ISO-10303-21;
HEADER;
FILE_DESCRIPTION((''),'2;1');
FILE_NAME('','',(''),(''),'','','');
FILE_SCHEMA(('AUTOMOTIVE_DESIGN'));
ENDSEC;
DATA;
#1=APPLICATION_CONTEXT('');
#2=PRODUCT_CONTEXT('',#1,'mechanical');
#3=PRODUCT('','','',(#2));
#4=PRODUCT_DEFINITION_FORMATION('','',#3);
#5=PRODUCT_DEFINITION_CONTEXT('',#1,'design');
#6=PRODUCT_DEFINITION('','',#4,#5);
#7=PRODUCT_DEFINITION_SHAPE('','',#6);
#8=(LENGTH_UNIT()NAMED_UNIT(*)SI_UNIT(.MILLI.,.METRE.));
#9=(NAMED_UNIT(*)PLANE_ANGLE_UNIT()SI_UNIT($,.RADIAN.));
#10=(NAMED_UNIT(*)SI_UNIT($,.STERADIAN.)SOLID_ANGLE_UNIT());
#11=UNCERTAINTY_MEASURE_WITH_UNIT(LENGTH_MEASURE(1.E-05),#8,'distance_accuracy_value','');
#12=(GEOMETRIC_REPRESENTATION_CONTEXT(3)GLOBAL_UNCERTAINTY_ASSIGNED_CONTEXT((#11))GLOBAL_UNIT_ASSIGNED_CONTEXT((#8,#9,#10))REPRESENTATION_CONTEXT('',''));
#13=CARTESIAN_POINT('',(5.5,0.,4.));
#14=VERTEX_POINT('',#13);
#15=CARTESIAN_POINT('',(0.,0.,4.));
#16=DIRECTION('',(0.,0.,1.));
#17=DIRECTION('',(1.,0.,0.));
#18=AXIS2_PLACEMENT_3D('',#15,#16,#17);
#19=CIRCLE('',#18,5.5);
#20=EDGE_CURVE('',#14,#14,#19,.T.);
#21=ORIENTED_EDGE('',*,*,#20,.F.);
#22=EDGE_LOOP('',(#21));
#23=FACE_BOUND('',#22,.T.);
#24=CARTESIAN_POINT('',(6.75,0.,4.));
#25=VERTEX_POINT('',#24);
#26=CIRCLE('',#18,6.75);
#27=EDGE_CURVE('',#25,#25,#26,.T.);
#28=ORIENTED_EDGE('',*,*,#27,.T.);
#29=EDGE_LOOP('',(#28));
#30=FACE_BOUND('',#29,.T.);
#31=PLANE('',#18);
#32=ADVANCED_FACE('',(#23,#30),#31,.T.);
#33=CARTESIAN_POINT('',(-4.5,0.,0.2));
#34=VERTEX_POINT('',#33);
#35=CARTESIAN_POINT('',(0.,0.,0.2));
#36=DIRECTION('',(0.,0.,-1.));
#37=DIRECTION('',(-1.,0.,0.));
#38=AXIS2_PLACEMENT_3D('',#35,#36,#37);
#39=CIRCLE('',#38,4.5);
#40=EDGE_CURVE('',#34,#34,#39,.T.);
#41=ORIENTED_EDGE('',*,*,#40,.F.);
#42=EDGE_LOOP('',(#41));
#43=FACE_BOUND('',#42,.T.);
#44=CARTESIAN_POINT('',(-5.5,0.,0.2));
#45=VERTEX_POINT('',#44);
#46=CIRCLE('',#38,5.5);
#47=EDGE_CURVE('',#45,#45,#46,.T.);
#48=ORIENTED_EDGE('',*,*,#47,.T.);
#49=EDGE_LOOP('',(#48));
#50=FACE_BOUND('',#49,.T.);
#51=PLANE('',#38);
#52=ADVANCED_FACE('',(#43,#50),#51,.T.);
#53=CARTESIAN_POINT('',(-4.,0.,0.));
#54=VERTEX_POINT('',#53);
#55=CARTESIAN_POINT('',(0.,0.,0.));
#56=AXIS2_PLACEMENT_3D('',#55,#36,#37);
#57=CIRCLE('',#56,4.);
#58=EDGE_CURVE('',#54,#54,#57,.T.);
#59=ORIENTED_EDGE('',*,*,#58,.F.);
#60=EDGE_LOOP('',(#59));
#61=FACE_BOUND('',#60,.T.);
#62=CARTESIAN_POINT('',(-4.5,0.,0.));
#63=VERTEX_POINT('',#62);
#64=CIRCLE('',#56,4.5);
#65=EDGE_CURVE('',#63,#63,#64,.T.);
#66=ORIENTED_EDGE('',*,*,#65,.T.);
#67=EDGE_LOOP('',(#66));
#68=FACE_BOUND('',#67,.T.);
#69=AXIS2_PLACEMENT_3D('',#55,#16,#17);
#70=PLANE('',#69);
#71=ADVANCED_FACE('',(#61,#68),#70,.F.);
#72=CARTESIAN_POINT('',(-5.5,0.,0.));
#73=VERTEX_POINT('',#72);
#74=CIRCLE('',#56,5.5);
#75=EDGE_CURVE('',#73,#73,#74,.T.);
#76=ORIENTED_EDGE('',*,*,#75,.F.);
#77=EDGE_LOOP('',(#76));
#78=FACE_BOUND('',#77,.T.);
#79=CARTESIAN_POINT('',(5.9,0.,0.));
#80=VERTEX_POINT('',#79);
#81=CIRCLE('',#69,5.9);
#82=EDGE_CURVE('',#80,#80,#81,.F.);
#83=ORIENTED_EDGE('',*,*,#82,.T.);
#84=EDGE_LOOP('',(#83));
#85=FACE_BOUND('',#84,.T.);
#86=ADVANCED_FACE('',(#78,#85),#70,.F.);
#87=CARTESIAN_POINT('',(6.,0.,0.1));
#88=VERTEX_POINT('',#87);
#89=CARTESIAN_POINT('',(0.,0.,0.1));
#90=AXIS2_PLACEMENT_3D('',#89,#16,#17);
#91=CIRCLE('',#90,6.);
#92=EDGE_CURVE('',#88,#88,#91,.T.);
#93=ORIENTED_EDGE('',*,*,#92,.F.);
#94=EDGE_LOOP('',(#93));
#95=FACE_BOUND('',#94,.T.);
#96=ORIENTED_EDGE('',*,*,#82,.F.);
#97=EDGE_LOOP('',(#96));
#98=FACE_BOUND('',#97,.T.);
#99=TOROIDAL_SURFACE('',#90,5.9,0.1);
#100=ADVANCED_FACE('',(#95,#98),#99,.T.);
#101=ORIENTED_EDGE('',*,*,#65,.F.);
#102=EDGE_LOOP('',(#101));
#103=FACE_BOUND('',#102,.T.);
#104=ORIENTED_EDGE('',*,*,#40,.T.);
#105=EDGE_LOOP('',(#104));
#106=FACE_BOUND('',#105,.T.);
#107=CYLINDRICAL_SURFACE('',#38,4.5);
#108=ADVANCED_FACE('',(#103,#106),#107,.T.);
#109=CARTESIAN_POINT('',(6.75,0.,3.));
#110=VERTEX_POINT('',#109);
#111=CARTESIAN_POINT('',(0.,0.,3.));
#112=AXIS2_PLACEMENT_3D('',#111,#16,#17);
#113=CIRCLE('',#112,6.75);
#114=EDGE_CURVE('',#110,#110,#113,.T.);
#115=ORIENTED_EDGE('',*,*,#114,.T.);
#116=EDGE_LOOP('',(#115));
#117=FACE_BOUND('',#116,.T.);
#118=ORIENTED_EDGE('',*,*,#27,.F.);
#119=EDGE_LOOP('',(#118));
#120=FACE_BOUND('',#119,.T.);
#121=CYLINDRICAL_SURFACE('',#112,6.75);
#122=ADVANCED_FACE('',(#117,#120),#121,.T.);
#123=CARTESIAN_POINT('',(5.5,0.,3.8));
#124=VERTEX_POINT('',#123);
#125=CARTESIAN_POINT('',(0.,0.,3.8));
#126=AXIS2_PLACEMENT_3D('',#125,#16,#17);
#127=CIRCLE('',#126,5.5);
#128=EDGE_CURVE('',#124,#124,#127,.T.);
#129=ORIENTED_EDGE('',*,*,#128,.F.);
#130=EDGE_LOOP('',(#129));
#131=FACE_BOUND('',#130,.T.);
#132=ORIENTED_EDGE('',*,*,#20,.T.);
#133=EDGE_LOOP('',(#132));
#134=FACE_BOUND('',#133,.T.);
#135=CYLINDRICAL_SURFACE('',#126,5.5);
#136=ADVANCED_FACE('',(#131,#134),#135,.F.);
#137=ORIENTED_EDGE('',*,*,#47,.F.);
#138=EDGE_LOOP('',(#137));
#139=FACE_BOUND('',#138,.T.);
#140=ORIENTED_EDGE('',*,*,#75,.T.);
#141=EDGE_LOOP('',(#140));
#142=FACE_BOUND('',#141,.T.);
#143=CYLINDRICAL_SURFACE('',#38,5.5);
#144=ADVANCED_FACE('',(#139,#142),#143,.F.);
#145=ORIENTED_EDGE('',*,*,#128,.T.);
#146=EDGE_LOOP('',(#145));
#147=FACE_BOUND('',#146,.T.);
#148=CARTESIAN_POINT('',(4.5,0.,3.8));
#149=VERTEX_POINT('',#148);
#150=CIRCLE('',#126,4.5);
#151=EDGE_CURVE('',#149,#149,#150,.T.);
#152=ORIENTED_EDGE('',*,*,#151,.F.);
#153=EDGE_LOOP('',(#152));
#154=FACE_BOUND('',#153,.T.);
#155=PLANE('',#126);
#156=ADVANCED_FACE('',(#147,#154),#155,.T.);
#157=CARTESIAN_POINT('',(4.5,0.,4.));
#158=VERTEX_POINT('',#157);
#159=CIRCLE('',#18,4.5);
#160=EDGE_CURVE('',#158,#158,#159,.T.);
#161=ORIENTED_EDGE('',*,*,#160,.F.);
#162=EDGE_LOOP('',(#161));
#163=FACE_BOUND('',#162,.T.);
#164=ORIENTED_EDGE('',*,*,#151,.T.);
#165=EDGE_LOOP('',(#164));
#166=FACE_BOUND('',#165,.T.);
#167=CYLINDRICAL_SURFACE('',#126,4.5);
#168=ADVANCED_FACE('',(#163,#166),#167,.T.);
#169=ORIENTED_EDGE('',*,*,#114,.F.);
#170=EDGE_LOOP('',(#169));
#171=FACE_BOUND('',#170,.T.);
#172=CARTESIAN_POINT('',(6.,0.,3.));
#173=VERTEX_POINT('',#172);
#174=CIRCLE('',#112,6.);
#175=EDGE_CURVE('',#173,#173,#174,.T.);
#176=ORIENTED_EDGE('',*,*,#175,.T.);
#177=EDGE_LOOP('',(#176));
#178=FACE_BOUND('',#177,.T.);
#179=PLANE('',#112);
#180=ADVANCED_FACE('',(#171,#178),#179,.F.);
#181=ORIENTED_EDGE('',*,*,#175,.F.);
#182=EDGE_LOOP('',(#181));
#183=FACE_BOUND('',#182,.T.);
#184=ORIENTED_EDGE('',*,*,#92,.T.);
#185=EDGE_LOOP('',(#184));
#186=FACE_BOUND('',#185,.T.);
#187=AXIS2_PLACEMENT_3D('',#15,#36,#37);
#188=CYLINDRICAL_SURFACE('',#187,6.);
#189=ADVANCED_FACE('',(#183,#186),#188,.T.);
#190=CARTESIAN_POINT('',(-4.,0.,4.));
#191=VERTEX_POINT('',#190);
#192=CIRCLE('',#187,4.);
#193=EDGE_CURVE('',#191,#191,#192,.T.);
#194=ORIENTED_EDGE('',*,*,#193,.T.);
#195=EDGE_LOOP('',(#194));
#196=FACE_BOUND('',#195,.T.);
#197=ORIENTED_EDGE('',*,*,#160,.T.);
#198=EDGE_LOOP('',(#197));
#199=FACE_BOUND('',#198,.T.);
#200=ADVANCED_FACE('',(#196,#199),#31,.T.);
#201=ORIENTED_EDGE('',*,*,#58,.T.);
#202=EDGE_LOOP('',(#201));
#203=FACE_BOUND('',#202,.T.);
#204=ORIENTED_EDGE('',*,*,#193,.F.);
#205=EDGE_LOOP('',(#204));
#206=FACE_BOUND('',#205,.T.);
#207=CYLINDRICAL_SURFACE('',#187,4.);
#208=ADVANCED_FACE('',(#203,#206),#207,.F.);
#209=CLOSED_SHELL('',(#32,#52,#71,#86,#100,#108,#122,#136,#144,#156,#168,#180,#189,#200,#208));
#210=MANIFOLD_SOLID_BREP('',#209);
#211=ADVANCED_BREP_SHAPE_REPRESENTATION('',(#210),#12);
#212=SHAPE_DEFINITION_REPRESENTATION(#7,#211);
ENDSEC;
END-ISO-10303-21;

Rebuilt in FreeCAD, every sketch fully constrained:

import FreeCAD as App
import Part
import Sketcher


def edges_at(feature, points):
    """Names of the edges that pass closest to the given points."""
    edges = feature.Shape.Edges
    near = lambda p: min(range(len(edges)), key=lambda i: edges[i].distToShape(Part.Vertex(*p))[0])
    return sorted({f"Edge{near(p) + 1}" for p in points})

doc = App.newDocument("Part")
params = doc.addObject("Spreadsheet::Sheet", "Params")
for row, (alias, value) in enumerate([
    ("sketch1_diameter", "12 mm"),
    ("pad1_length", "4 mm"),
    ("sketch2_diameter", "13.5 mm"),
    ("pad2_length", "1 mm"),
    ("sketch3_diameter", "8 mm"),
    ("sketch4_diameter", "11 mm"),
    ("sketch4_diameter2", "9 mm"),
    ("pocket2_length", "0.2 mm"),
    ("sketch5_diameter", "11 mm"),
    ("sketch5_diameter2", "9 mm"),
    ("pocket3_length", "0.2 mm"),
    ("fillet_radius", "0.1 mm"),
], start=1):
    params.set(f"A{row}", alias)
    params.set(f"B{row}", "=" + value)
    params.setAlias(f"B{row}", alias)

body = doc.addObject("PartDesign::Body", "Body")

# Sketch on XY plane
sketch1 = body.newObject("Sketcher::SketchObject", "Sketch")
sketch1.AttachmentSupport = (doc.getObject("XY_Plane"), [""])
sketch1.MapMode = "FlatFace"
sketch1.addGeometry(Part.Circle(App.Vector(0, 0, 0), App.Vector(0, 0, 1), 6), False)
sketch1.addConstraint(Sketcher.Constraint("Coincident", 0, 3, -1, 1))
sketch1.addConstraint(Sketcher.Constraint("Diameter", 0, 12.0))
sketch1.setExpression("Constraints[1]", "Params.sketch1_diameter")
pad1 = body.newObject("PartDesign::Pad", "Pad")
pad1.Profile = sketch1
pad1.setExpression("Length", "Params.pad1_length")

# Sketch on XY plane
sketch2 = body.newObject("Sketcher::SketchObject", "Sketch001")
sketch2.AttachmentSupport = (doc.getObject("XY_Plane"), [""])
sketch2.MapMode = "FlatFace"
sketch2.AttachmentOffset = App.Placement(App.Vector(0, 0, 4), App.Rotation())
sketch2.addGeometry(Part.Circle(App.Vector(0, 0, 0), App.Vector(0, 0, 1), 6.75), False)
sketch2.addConstraint(Sketcher.Constraint("Coincident", 0, 3, -1, 1))
sketch2.addConstraint(Sketcher.Constraint("Diameter", 0, 13.5))
sketch2.setExpression("Constraints[1]", "Params.sketch2_diameter")
pad2 = body.newObject("PartDesign::Pad", "Pad001")
pad2.Profile = sketch2
pad2.setExpression("Length", "Params.pad2_length")
pad2.Reversed = True

# Sketch on XY plane
sketch3 = body.newObject("Sketcher::SketchObject", "Sketch002")
sketch3.AttachmentSupport = (doc.getObject("XY_Plane"), [""])
sketch3.MapMode = "FlatFace"
sketch3.addGeometry(Part.Circle(App.Vector(0, 0, 0), App.Vector(0, 0, 1), 4), False)
sketch3.addConstraint(Sketcher.Constraint("Coincident", 0, 3, -1, 1))
sketch3.addConstraint(Sketcher.Constraint("Diameter", 0, 8.0))
sketch3.setExpression("Constraints[1]", "Params.sketch3_diameter")
pocket1 = body.newObject("PartDesign::Pocket", "Pocket")
pocket1.Profile = sketch3
pocket1.Type = "ThroughAll"
pocket1.Reversed = True

# Sketch on XY plane
sketch4 = body.newObject("Sketcher::SketchObject", "Sketch003")
sketch4.AttachmentSupport = (doc.getObject("XY_Plane"), [""])
sketch4.MapMode = "FlatFace"
sketch4.addGeometry(Part.Circle(App.Vector(0, 0, 0), App.Vector(0, 0, 1), 5.5), False)
sketch4.addGeometry(Part.Circle(App.Vector(0, 0, 0), App.Vector(0, 0, 1), 4.5), False)
sketch4.addConstraint(Sketcher.Constraint("Coincident", 0, 3, -1, 1))
sketch4.addConstraint(Sketcher.Constraint("Coincident", 1, 3, -1, 1))
sketch4.addConstraint(Sketcher.Constraint("Diameter", 0, 11.0))
sketch4.addConstraint(Sketcher.Constraint("Diameter", 1, 9.0))
sketch4.setExpression("Constraints[2]", "Params.sketch4_diameter")
sketch4.setExpression("Constraints[3]", "Params.sketch4_diameter2")
pocket2 = body.newObject("PartDesign::Pocket", "Pocket001")
pocket2.Profile = sketch4
pocket2.setExpression("Length", "Params.pocket2_length")
pocket2.Reversed = True

# Sketch on XY plane
sketch5 = body.newObject("Sketcher::SketchObject", "Sketch004")
sketch5.AttachmentSupport = (doc.getObject("XY_Plane"), [""])
sketch5.MapMode = "FlatFace"
sketch5.AttachmentOffset = App.Placement(App.Vector(0, 0, 4), App.Rotation())
sketch5.addGeometry(Part.Circle(App.Vector(0, 0, 0), App.Vector(0, 0, 1), 5.5), False)
sketch5.addGeometry(Part.Circle(App.Vector(0, 0, 0), App.Vector(0, 0, 1), 4.5), False)
sketch5.addConstraint(Sketcher.Constraint("Coincident", 0, 3, -1, 1))
sketch5.addConstraint(Sketcher.Constraint("Coincident", 1, 3, -1, 1))
sketch5.addConstraint(Sketcher.Constraint("Diameter", 0, 11.0))
sketch5.addConstraint(Sketcher.Constraint("Diameter", 1, 9.0))
sketch5.setExpression("Constraints[2]", "Params.sketch5_diameter")
sketch5.setExpression("Constraints[3]", "Params.sketch5_diameter2")
pocket3 = body.newObject("PartDesign::Pocket", "Pocket002")
pocket3.Profile = sketch5
pocket3.setExpression("Length", "Params.pocket3_length")
doc.recompute()

fillet = body.newObject("PartDesign::Fillet", "Fillet")
fillet.Base = (pocket3, edges_at(pocket3, [(-6, 0, 0)]))
fillet.setExpression("Radius", "Params.fillet_radius")

doc.recompute()
